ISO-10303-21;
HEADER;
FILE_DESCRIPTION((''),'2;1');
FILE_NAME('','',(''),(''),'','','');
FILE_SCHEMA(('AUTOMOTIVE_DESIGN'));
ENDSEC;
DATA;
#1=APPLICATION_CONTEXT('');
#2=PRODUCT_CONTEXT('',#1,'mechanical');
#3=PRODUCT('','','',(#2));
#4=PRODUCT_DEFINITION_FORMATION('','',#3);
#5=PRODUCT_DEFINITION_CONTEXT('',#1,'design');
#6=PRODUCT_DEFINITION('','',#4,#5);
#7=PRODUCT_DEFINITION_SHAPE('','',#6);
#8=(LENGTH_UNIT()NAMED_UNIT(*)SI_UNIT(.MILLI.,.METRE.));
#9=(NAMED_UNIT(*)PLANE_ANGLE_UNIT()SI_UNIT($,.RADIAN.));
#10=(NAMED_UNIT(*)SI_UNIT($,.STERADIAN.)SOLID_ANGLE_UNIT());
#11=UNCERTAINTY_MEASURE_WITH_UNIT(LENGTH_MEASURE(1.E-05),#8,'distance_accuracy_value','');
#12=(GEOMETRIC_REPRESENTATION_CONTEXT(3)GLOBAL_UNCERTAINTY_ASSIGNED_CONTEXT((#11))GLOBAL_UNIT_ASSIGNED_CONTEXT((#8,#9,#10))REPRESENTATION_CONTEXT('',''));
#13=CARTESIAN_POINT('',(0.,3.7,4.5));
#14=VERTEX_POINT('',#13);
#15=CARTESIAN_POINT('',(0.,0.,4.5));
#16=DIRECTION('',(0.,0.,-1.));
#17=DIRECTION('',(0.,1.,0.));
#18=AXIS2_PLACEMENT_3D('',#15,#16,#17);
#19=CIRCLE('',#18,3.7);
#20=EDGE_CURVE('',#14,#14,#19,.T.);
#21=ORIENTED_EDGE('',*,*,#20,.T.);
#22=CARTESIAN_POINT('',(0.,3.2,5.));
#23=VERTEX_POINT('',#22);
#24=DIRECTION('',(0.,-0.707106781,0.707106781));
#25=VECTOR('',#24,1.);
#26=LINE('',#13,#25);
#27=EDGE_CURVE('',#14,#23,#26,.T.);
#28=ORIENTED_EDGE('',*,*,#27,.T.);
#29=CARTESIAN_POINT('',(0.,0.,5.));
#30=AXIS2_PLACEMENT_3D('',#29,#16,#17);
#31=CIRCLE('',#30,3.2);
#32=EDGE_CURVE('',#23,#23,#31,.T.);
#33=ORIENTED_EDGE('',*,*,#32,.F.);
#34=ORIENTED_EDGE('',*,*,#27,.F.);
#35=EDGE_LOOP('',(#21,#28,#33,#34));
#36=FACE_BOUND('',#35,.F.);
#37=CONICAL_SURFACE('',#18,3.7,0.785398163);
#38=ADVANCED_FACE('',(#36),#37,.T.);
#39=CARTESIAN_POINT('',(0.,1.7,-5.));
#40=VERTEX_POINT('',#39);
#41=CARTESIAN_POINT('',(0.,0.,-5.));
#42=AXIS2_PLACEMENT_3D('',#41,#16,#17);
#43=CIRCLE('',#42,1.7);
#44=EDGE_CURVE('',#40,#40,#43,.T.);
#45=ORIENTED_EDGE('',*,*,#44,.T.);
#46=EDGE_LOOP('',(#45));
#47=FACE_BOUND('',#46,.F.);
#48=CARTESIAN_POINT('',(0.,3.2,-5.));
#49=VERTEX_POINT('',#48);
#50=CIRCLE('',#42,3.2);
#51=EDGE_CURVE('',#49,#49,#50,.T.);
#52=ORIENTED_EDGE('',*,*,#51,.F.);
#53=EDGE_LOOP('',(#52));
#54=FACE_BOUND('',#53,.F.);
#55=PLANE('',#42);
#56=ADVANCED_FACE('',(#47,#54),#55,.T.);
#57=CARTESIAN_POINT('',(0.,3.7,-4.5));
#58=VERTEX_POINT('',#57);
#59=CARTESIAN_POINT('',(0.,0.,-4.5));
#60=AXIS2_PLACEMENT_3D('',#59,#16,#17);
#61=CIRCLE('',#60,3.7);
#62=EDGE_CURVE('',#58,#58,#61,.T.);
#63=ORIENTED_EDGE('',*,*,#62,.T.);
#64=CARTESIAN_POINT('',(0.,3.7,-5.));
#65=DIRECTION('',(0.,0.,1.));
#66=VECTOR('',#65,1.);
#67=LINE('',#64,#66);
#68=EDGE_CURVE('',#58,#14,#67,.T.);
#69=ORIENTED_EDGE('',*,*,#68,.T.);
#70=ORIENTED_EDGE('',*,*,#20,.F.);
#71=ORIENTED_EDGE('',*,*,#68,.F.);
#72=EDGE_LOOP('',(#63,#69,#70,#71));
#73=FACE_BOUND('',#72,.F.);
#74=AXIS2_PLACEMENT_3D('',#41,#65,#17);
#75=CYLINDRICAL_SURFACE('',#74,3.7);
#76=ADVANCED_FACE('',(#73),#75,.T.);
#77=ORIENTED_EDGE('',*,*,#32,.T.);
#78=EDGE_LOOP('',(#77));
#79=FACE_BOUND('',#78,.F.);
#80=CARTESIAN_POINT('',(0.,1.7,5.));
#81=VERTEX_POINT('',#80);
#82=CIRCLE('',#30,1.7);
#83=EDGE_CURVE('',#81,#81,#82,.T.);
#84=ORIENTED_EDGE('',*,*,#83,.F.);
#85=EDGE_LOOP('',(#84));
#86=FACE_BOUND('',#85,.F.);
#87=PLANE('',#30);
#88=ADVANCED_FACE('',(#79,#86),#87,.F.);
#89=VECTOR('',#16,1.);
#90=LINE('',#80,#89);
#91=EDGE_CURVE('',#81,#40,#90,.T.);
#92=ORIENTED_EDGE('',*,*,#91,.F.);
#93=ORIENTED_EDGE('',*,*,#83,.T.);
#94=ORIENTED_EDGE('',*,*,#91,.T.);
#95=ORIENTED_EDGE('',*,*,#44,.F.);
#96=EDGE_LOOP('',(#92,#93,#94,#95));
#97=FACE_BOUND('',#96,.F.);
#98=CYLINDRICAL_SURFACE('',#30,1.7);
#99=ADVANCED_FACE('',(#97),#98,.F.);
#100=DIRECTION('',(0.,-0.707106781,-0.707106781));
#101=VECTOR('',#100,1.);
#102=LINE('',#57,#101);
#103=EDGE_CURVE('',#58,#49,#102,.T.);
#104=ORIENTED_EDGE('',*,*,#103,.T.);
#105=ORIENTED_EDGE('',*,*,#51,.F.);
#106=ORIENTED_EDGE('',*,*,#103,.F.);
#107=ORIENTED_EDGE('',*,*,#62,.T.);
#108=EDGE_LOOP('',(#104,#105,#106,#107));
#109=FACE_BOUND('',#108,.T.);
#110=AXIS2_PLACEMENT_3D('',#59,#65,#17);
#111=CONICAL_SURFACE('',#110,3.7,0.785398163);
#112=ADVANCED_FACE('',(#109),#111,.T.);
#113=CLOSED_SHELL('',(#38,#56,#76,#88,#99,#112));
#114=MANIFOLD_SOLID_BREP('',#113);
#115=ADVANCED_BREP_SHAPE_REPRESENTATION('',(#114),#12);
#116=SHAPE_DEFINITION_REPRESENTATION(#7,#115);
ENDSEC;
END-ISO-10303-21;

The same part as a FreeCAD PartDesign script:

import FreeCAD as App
import Part
import Sketcher
from FreeCAD import Vector


def edges_at(feature, points):
    """Names of the edges that pass closest to the given points."""
    edges = feature.Shape.Edges
    near = lambda p: min(range(len(edges)), key=lambda i: edges[i].distToShape(Part.Vertex(*p))[0])
    return sorted({f"Edge{near(p) + 1}" for p in points})


def add_polygon(sketch, points):
    """Adds a closed chain of lines whose ends are joined by coincident constraints."""
    first, n = sketch.GeometryCount, len(points)
    for a, b in zip(points, points[1:] + points[:1]):
        sketch.addGeometry(Part.LineSegment(App.Vector(*a, 0), App.Vector(*b, 0)), False)
    for i in range(n):
        sketch.addConstraint(Sketcher.Constraint("Coincident", first + i, 2, first + (i + 1) % n, 1))

doc = App.newDocument("Part")
body = doc.addObject("PartDesign::Body", "Body")

# Sketch on YZ plane
sketch1 = body.newObject("Sketcher::SketchObject", "Sketch")
sketch1.AttachmentSupport = (doc.getObject("YZ_Plane"), [""])
sketch1.MapMode = "FlatFace"
add_polygon(sketch1, [(3.7, -5), (3.7, 5), (1.7, 5), (1.7, -5)])  # lines 0-3
sketch1.addConstraint(Sketcher.Constraint("Vertical", 0))
sketch1.addConstraint(Sketcher.Constraint("Horizontal", 1))
sketch1.addConstraint(Sketcher.Constraint("Vertical", 2))
sketch1.addConstraint(Sketcher.Constraint("Horizontal", 3))
sketch1.addConstraint(Sketcher.Constraint("DistanceY", 0, 1, 0, 2, 10.0))
sketch1.addConstraint(Sketcher.Constraint("DistanceX", 1, 2, 1, 1, 2.0))
sketch1.addConstraint(Sketcher.Constraint("DistanceY", -1, 1, 0, 2, 5.0))
sketch1.addConstraint(Sketcher.Constraint("DistanceX", -1, 1, 0, 2, 3.7))
revolution = body.newObject("PartDesign::Revolution", "Revolution")
revolution.Profile = sketch1
revolution.ReferenceAxis = (sketch1, ["V_Axis"])
revolution.Angle = 360
doc.recompute()

chamfer = body.newObject("PartDesign::Chamfer", "Chamfer")
chamfer.Base = (revolution, edges_at(revolution, [(0, -3.7, 5), (0, -3.7, -5)]))
chamfer.Size = 0.5

doc.recompute()
